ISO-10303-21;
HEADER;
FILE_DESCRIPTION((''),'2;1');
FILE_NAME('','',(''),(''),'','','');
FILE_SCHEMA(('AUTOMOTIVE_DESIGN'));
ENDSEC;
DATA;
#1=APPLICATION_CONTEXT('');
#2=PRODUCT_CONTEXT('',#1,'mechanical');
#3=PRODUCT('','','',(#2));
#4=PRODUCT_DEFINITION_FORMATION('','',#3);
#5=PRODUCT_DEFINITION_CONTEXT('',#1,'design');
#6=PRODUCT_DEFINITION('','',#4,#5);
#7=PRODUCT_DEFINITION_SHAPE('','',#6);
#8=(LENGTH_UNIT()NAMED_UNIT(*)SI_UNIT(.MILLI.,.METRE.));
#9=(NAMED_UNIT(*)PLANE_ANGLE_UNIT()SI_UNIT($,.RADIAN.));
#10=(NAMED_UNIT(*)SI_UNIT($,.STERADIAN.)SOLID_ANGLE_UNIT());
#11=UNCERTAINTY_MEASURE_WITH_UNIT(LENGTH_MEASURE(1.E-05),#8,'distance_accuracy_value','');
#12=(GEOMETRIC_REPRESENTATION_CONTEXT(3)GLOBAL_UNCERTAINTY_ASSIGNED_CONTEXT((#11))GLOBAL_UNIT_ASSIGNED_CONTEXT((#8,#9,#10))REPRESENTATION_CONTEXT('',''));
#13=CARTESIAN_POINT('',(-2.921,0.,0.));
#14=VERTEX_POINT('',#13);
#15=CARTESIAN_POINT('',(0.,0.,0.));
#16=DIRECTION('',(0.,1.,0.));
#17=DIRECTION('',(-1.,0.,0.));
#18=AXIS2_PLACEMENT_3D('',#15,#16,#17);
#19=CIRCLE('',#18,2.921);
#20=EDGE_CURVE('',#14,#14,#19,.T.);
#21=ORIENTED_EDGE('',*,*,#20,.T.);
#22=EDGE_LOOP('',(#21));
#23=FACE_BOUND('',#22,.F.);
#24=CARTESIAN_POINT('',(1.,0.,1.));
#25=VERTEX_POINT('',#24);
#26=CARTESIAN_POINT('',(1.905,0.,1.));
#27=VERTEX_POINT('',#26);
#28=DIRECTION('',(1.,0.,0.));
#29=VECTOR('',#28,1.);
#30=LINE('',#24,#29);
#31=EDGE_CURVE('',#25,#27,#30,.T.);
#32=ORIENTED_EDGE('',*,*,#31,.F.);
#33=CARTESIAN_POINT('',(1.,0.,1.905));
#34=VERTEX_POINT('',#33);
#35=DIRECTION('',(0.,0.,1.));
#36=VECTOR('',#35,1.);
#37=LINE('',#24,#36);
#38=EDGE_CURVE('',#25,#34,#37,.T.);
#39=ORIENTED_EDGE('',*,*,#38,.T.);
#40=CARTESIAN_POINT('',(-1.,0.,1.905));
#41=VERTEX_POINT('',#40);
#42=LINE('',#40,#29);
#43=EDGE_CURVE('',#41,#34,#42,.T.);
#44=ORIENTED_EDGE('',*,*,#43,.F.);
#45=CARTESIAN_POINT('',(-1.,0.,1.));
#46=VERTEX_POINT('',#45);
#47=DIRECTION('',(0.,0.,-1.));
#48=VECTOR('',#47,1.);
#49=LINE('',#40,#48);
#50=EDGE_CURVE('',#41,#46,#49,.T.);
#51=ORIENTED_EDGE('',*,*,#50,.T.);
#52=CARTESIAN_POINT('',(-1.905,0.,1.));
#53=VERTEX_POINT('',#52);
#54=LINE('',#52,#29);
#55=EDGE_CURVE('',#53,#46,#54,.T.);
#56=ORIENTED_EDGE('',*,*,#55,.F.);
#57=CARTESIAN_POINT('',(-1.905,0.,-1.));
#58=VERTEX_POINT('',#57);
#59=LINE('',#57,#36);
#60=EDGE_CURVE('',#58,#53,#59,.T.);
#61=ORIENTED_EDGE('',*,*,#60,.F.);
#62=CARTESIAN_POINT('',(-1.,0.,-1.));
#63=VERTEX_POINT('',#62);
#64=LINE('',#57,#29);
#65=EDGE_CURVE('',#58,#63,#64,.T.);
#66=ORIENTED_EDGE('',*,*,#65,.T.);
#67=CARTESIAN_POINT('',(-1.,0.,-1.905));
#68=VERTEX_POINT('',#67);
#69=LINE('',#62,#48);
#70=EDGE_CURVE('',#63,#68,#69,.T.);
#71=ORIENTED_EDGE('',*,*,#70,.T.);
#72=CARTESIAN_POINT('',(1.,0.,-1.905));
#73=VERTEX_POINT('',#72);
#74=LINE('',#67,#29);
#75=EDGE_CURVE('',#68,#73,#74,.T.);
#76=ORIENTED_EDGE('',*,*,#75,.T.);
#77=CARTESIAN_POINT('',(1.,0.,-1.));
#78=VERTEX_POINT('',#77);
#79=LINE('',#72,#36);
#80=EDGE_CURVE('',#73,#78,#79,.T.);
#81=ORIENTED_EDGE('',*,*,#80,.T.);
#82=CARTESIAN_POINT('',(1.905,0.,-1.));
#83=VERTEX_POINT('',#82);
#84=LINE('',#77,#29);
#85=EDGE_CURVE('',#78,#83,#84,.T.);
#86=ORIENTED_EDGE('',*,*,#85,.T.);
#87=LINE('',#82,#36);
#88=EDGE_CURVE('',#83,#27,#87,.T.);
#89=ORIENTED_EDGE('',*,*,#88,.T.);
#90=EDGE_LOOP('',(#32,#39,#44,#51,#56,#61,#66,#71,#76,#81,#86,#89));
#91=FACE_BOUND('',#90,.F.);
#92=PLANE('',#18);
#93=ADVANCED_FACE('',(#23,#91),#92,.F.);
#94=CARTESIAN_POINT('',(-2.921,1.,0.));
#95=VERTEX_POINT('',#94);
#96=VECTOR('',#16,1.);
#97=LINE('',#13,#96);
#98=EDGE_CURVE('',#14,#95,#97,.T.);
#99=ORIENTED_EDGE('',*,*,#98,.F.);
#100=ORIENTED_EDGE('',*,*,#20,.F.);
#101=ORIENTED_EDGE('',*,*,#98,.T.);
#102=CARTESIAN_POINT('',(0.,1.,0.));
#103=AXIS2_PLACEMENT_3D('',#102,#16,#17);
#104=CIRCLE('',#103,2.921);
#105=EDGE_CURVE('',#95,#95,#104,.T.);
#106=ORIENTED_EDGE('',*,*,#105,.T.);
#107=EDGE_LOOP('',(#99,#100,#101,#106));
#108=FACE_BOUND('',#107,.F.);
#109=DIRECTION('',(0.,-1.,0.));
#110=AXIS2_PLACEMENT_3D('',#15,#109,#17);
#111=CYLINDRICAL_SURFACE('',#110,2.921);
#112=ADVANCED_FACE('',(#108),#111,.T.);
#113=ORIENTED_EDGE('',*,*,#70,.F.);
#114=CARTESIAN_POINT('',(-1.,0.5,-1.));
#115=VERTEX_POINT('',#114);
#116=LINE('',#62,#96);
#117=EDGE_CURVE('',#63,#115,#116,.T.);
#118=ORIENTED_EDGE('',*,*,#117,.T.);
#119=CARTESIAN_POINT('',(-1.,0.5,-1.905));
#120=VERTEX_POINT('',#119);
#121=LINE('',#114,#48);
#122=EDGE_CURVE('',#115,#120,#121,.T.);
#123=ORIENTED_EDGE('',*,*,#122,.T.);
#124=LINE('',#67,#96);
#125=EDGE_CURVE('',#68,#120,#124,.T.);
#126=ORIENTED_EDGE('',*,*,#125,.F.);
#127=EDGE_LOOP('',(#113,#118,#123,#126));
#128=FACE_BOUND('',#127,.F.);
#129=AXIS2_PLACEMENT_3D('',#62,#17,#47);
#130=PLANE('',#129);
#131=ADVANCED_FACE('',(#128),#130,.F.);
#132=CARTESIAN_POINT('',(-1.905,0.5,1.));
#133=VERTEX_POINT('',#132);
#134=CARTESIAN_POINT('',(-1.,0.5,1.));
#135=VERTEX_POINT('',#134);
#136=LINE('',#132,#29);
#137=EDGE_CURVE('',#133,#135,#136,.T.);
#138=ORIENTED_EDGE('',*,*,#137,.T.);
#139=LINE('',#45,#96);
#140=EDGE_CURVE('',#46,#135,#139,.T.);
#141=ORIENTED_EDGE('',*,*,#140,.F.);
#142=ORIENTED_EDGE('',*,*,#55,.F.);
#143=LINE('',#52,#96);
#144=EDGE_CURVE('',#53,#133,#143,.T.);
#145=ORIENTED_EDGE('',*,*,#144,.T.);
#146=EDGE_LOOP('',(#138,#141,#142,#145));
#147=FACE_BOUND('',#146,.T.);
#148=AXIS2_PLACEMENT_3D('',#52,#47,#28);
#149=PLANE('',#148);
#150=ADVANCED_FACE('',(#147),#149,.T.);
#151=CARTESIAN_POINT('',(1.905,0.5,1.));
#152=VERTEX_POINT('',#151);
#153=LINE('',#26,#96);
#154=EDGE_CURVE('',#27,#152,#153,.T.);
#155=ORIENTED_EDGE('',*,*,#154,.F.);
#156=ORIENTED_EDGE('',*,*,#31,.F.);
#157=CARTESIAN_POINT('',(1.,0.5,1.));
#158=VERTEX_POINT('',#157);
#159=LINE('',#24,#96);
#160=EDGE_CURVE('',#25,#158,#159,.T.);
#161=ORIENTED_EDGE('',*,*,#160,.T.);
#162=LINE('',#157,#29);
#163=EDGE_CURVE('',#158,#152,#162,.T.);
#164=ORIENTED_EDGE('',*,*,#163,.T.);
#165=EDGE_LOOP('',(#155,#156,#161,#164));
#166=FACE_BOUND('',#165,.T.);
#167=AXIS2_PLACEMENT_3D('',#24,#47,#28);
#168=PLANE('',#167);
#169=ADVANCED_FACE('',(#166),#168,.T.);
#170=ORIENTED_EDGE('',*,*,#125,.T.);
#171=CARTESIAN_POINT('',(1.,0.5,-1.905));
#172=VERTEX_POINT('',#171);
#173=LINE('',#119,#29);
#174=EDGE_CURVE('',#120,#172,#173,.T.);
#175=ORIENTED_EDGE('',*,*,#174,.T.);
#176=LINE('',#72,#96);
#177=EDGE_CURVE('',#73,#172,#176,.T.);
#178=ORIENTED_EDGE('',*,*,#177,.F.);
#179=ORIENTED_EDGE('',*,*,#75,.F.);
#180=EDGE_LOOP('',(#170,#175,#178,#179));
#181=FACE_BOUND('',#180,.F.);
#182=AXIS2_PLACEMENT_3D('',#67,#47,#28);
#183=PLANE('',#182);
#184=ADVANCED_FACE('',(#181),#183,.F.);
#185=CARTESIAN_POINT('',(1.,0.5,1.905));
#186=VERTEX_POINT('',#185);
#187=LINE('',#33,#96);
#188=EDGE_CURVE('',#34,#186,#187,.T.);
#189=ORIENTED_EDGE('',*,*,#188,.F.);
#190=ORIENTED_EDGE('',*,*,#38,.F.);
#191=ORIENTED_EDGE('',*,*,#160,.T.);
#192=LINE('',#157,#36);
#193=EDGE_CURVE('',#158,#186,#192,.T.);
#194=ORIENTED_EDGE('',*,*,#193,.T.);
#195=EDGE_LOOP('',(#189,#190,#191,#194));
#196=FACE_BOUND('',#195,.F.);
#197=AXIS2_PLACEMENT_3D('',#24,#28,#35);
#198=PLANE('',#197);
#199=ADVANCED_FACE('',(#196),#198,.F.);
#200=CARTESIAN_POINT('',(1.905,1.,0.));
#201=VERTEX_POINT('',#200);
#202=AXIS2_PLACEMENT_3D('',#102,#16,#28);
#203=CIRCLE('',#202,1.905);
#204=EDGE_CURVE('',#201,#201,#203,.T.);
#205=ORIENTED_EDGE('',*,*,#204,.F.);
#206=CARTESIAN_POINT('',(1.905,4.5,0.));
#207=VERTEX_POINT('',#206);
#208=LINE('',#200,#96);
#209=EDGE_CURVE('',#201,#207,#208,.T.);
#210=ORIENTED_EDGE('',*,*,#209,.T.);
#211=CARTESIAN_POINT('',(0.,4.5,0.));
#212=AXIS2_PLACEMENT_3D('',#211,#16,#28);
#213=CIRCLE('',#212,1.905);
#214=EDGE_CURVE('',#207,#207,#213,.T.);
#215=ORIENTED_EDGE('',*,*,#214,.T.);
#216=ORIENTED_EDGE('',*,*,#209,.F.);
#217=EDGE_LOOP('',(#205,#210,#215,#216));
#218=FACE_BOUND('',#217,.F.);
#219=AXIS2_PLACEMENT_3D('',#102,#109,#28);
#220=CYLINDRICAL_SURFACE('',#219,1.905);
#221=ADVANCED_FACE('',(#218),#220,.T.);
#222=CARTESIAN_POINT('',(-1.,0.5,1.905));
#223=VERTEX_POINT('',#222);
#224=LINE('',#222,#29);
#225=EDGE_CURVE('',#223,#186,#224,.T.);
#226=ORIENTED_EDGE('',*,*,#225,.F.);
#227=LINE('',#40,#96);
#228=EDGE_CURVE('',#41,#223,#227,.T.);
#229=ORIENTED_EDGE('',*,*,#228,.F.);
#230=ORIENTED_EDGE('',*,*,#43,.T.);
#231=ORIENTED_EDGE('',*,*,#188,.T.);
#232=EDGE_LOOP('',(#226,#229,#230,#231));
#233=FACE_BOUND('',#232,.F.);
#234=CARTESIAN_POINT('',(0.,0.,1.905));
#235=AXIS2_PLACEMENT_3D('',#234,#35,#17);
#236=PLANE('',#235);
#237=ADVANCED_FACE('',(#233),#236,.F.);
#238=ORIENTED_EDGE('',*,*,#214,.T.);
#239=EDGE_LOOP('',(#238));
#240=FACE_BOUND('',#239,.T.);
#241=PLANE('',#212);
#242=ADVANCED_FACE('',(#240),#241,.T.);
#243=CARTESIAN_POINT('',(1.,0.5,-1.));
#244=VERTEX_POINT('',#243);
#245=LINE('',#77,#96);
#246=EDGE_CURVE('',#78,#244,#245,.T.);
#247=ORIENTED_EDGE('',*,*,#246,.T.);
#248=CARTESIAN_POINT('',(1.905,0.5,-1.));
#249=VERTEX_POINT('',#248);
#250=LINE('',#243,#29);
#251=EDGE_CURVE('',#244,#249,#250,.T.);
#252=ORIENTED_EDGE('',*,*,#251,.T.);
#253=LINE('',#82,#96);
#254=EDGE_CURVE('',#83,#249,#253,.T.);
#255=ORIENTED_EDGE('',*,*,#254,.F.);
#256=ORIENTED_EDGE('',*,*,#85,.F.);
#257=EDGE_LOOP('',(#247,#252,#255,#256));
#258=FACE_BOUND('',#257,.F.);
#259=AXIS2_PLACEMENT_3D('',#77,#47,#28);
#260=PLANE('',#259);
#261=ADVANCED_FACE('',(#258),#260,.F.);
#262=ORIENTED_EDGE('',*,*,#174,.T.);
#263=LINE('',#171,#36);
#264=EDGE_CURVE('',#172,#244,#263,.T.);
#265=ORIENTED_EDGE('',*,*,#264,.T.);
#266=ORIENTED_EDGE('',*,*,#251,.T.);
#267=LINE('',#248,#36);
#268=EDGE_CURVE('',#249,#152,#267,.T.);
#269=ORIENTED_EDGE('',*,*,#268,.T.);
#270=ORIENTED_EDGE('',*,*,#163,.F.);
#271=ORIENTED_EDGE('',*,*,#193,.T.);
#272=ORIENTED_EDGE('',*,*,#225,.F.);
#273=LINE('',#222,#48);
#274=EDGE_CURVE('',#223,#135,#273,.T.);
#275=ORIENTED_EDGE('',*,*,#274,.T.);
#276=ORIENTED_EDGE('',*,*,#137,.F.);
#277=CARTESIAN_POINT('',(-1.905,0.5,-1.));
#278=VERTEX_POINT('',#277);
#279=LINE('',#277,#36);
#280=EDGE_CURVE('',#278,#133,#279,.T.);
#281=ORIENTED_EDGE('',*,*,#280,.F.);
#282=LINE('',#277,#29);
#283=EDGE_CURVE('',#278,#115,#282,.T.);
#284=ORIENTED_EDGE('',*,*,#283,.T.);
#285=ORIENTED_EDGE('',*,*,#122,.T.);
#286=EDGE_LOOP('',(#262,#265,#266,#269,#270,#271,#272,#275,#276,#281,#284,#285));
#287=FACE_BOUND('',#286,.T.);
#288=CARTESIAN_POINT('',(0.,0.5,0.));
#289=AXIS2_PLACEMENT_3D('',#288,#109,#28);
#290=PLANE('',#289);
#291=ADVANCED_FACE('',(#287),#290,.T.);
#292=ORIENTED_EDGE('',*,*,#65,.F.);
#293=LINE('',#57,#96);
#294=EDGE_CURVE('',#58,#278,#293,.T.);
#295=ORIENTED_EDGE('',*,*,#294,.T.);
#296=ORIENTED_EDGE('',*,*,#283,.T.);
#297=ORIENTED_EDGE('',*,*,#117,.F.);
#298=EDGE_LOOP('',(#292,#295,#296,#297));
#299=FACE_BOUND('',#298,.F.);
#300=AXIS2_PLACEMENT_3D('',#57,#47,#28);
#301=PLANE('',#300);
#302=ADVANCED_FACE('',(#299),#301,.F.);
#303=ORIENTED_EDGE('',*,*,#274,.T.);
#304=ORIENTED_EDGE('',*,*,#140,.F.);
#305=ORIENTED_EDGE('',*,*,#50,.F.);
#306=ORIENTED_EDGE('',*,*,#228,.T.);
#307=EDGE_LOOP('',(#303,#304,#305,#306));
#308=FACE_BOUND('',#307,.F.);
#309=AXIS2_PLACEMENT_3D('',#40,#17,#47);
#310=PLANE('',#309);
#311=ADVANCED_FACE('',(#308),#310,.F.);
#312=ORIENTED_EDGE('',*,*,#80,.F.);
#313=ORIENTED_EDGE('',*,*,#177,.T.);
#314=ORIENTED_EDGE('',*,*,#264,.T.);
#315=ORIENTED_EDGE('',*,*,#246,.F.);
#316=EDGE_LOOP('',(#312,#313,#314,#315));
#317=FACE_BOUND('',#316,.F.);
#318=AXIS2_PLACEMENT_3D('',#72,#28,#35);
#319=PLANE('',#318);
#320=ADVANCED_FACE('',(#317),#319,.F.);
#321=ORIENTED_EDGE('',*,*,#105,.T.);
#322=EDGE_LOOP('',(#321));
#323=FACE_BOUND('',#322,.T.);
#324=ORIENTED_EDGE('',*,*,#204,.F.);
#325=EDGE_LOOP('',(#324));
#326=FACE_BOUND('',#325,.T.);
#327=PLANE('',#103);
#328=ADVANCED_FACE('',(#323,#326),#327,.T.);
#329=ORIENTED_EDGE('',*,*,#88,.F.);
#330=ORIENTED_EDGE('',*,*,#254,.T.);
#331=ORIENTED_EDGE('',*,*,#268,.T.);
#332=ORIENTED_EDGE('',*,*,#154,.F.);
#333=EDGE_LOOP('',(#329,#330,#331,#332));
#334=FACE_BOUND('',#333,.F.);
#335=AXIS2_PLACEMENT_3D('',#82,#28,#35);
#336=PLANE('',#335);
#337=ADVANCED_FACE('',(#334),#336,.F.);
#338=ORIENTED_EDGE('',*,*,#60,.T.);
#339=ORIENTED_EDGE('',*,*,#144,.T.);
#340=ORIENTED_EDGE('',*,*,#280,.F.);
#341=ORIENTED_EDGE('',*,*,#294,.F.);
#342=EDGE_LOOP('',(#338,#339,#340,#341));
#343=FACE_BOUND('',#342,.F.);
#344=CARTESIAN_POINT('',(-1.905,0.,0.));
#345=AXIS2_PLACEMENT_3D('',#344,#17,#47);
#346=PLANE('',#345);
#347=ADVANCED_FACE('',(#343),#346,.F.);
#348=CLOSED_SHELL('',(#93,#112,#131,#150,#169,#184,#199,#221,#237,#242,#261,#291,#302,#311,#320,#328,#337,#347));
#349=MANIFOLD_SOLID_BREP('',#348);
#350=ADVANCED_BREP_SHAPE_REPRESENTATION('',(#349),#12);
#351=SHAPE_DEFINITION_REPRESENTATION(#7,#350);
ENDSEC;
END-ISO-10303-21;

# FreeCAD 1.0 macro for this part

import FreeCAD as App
import Part
import Sketcher
from FreeCAD import Vector

doc = App.newDocument("Part")
body = doc.addObject("PartDesign::Body", "Body")

# Sketch on XZ plane
sketch1 = body.newObject("Sketcher::SketchObject", "Sketch")
sketch1.AttachmentSupport = (doc.getObject("XZ_Plane"), [""])
sketch1.MapMode = "FlatFace"
sketch1.addGeometry(Part.Circle(Vector(0, 0, 0), Vector(0, 0, 1), 2.9), False)
sketch1.addConstraint([
    Sketcher.Constraint("Coincident", 0, 3, -1, 1),
    Sketcher.Constraint("Diameter", 0, 5.842),
])
pad1 = body.newObject("PartDesign::Pad", "Pad")
pad1.Profile = sketch1
pad1.Length = 1
pad1.Reversed = True

# Sketch on XZ plane
sketch2 = body.newObject("Sketcher::SketchObject", "Sketch001")
sketch2.AttachmentSupport = (doc.getObject("XZ_Plane"), [""])
sketch2.MapMode = "FlatFace"
sketch2.AttachmentOffset = App.Placement(Vector(0, 0, -1), App.Rotation())
sketch2.addGeometry(Part.Circle(Vector(0, 0, 0), Vector(0, 0, 1), 1.9), False)
sketch2.addConstraint([
    Sketcher.Constraint("Coincident", 0, 3, -1, 1),
    Sketcher.Constraint("Diameter", 0, 3.81),
])
pad2 = body.newObject("PartDesign::Pad", "Pad001")
pad2.Profile = sketch2
pad2.Length = 3.5
pad2.Reversed = True

# Sketch on XZ plane
sketch3 = body.newObject("Sketcher::SketchObject", "Sketch002")
sketch3.AttachmentSupport = (doc.getObject("XZ_Plane"), [""])
sketch3.MapMode = "FlatFace"
sketch3.addGeometry([
    Part.LineSegment(Vector(1, 1.9, 0), Vector(-1, 1.9, 0)),  # 0
    Part.LineSegment(Vector(-1, 1.9, 0), Vector(-1, 1, 0)),  # 1
    Part.LineSegment(Vector(-1, 1, 0), Vector(-1.9, 1, 0)),  # 2
    Part.LineSegment(Vector(-1.9, 1, 0), Vector(-1.9, -1, 0)),  # 3
    Part.LineSegment(Vector(-1.9, -1, 0), Vector(-1, -1, 0)),  # 4
    Part.LineSegment(Vector(-1, -1, 0), Vector(-1, -1.9, 0)),  # 5
    Part.LineSegment(Vector(-1, -1.9, 0), Vector(1, -1.9, 0)),  # 6
    Part.LineSegment(Vector(1, -1.9, 0), Vector(1, -1, 0)),  # 7
    Part.LineSegment(Vector(1, -1, 0), Vector(1.9, -1, 0)),  # 8
    Part.LineSegment(Vector(1.9, -1, 0), Vector(1.9, 1, 0)),  # 9
    Part.LineSegment(Vector(1.9, 1, 0), Vector(1, 1, 0)),  # 10
    Part.LineSegment(Vector(1, 1, 0), Vector(1, 1.9, 0)),  # 11
], False)
sketch3.addConstraint([
    Sketcher.Constraint("Coincident", 0, 2, 1, 1),
    Sketcher.Constraint("Coincident", 1, 2, 2, 1),
    Sketcher.Constraint("Coincident", 2, 2, 3, 1),
    Sketcher.Constraint("Coincident", 3, 2, 4, 1),
    Sketcher.Constraint("Coincident", 4, 2, 5, 1),
    Sketcher.Constraint("Coincident", 5, 2, 6, 1),
    Sketcher.Constraint("Coincident", 6, 2, 7, 1),
    Sketcher.Constraint("Coincident", 7, 2, 8, 1),
    Sketcher.Constraint("Coincident", 8, 2, 9, 1),
    Sketcher.Constraint("Coincident", 9, 2, 10, 1),
    Sketcher.Constraint("Coincident", 10, 2, 11, 1),
    Sketcher.Constraint("Coincident", 11, 2, 0, 1),
    Sketcher.Constraint("Horizontal", 0),
    Sketcher.Constraint("Vertical", 1),
    Sketcher.Constraint("Horizontal", 2),
    Sketcher.Constraint("Vertical", 3),
    Sketcher.Constraint("Horizontal", 4),
    Sketcher.Constraint("Vertical", 5),
    Sketcher.Constraint("Horizontal", 6),
    Sketcher.Constraint("Vertical", 7),
    Sketcher.Constraint("Horizontal", 8),
    Sketcher.Constraint("Vertical", 9),
    Sketcher.Constraint("Horizontal", 10),
    Sketcher.Constraint("Vertical", 11),
    Sketcher.Constraint("Symmetric", 0, 2, 6, 2, -1, 1),
    Sketcher.Constraint("Symmetric", 2, 2, 8, 2, -1, 1),
    Sketcher.Constraint("Symmetric", 4, 2, 10, 2, -1, 1),
    Sketcher.Constraint("Symmetric", 4, 2, 7, 2, -2),
    Sketcher.Constraint("Equal", 10, 1),
    Sketcher.Constraint("Equal", 6, 3),
    Sketcher.Constraint("DistanceX", 0, 2, 0, 1, 2.0),
    Sketcher.Constraint("DistanceY", 5, 2, 0, 2, 3.81),
])
pocket1 = body.newObject("PartDesign::Pocket", "Pocket")
pocket1.Profile = sketch3
pocket1.Length = 0.5

doc.recompute()
